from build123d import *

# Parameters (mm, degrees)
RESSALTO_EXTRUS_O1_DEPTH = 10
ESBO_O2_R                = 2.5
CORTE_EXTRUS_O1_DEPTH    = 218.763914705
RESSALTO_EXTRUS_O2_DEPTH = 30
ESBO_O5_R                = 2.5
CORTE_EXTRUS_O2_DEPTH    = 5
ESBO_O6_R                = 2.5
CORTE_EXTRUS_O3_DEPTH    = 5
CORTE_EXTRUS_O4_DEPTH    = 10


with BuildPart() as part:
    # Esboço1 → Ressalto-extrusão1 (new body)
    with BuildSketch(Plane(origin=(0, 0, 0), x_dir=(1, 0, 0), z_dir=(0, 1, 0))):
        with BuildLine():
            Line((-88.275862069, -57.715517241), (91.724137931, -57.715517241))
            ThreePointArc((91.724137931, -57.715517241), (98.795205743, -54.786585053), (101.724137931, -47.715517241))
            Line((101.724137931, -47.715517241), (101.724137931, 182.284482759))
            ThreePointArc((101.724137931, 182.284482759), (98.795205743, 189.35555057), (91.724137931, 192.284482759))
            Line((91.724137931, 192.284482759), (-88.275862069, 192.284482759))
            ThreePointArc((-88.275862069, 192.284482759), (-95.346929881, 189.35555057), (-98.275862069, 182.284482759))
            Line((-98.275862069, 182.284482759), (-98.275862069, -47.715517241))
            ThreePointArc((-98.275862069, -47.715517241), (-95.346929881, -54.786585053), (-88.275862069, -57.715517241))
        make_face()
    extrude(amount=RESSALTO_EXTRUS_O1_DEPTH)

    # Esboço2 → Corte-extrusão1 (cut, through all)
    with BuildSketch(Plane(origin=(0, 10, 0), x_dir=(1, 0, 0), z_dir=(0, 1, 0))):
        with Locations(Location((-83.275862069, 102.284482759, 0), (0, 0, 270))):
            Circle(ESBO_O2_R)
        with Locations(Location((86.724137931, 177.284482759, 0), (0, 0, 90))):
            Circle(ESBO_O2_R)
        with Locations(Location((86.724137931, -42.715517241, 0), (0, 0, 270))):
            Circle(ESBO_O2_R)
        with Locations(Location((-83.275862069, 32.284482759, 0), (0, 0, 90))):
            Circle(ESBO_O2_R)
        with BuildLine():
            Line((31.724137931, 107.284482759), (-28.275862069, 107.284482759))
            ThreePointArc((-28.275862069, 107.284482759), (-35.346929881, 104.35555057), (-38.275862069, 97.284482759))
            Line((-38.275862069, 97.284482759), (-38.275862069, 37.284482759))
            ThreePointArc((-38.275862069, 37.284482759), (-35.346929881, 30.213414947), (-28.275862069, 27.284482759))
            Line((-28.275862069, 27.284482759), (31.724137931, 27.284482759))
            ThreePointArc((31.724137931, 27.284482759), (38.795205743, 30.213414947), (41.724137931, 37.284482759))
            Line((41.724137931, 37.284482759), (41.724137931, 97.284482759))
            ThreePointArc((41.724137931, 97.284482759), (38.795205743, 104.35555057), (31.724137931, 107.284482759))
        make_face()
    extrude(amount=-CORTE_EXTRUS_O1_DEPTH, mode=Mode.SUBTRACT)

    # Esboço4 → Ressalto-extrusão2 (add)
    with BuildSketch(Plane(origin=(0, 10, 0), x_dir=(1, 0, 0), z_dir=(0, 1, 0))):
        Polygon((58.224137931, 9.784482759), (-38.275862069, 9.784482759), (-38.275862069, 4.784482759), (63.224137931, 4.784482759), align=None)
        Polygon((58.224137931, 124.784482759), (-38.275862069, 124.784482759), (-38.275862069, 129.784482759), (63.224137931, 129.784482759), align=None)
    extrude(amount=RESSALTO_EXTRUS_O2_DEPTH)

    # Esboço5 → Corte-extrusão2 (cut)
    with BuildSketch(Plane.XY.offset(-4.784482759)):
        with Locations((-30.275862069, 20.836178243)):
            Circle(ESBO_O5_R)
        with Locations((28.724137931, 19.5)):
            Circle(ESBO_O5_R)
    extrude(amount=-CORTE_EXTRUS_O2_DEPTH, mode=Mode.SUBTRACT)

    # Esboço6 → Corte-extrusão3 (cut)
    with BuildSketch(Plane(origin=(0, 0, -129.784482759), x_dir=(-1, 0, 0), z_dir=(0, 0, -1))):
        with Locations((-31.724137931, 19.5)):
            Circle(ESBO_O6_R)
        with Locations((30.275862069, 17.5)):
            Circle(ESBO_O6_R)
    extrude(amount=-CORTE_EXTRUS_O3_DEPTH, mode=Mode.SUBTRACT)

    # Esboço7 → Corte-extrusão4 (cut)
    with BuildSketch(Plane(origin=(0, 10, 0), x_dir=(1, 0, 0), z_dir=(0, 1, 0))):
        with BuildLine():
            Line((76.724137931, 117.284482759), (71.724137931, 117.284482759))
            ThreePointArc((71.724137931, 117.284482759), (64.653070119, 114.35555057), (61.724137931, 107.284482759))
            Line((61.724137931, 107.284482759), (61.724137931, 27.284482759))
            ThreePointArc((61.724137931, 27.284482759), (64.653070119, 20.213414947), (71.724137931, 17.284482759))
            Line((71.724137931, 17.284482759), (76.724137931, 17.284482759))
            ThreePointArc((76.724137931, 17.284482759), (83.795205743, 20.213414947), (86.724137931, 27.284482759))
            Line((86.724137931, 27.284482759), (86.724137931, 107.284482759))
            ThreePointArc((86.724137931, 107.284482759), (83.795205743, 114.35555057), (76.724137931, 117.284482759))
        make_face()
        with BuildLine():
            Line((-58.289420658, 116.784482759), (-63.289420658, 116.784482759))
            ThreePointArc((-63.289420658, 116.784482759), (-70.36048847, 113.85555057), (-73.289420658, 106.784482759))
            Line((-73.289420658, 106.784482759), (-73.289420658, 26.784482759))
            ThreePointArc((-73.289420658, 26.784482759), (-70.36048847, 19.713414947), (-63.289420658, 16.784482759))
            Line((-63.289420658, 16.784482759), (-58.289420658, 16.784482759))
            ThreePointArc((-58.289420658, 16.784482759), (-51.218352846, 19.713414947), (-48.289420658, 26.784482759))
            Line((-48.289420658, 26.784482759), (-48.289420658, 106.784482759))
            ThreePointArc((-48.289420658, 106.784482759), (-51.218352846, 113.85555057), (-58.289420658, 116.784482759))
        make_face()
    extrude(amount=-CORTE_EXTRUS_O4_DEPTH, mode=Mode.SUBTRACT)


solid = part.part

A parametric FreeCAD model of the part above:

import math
import FreeCAD as App
import Part
import Sketcher
from FreeCAD import Vector
Q = App.Units.Quantity


def add_polygon(sketch, points):
    """Adds a closed chain of lines whose ends are joined by coincident constraints."""
    first, n = sketch.GeometryCount, len(points)
    for a, b in zip(points, points[1:] + points[:1]):
        sketch.addGeometry(Part.LineSegment(App.Vector(*a, 0), App.Vector(*b, 0)), False)
    for i in range(n):
        sketch.addConstraint(Sketcher.Constraint("Coincident", first + i, 2, first + (i + 1) % n, 1))

doc = App.newDocument("Part")
body = doc.addObject("PartDesign::Body", "Body")

# Sketch on XZ plane
sketch1 = body.newObject("Sketcher::SketchObject", "Sketch")
sketch1.AttachmentSupport = (doc.getObject("XZ_Plane"), [""])
sketch1.MapMode = "FlatFace"
sketch1.addGeometry([
    Part.LineSegment(Vector(-88, 58, 0), Vector(92, 58, 0)),  # 0
    Part.ArcOfCircle(Part.Circle(Vector(92, 48, 0), Vector(0, 0, 1), 10), math.radians(0), math.radians(90)),  # 1
    Part.LineSegment(Vector(102, 48, 0), Vector(102, -182, 0)),  # 2
    Part.ArcOfCircle(Part.Circle(Vector(92, -182, 0), Vector(0, 0, 1), 10), math.radians(-90), math.radians(0)),  # 3
    Part.LineSegment(Vector(92, -192, 0), Vector(-88, -192, 0)),  # 4
    Part.ArcOfCircle(Part.Circle(Vector(-88, -182, 0), Vector(0, 0, 1), 10), math.radians(-180), math.radians(-90)),  # 5
    Part.LineSegment(Vector(-98, -182, 0), Vector(-98, 48, 0)),  # 6
    Part.ArcOfCircle(Part.Circle(Vector(-88, 48, 0), Vector(0, 0, 1), 10), math.radians(90), math.radians(180)),  # 7
], False)
sketch1.addConstraint([
    Sketcher.Constraint("Tangent", 0, 2, 1, 2),
    Sketcher.Constraint("Tangent", 1, 1, 2, 1),
    Sketcher.Constraint("Tangent", 2, 2, 3, 2),
    Sketcher.Constraint("Tangent", 3, 1, 4, 1),
    Sketcher.Constraint("Tangent", 4, 2, 5, 2),
    Sketcher.Constraint("Tangent", 5, 1, 6, 1),
    Sketcher.Constraint("Tangent", 6, 2, 7, 2),
    Sketcher.Constraint("Tangent", 7, 1, 0, 1),
    Sketcher.Constraint("Horizontal", 0),
    Sketcher.Constraint("Vertical", 2),
    Sketcher.Constraint("Horizontal", 4),
    Sketcher.Constraint("Vertical", 6),
    Sketcher.Constraint("Equal", 1, 3),
    Sketcher.Constraint("Equal", 3, 5),
    Sketcher.Constraint("Equal", 5, 7),
    Sketcher.Constraint("Radius", 1, Q("10 mm")),
    Sketcher.Constraint("DistanceX", 0, 1, 0, 2, Q("180 mm")),
    Sketcher.Constraint("DistanceY", 2, 2, 2, 1, Q("230 mm")),
    Sketcher.Constraint("DistanceX", -1, 1, 1, 3, Q("91.724138 mm")),
    Sketcher.Constraint("DistanceY", -1, 1, 1, 3, Q("47.715517 mm")),
])
pad1 = body.newObject("PartDesign::Pad", "Pad")
pad1.Profile = sketch1
pad1.Length = 10
pad1.Reversed = True

# Sketch on XZ plane
sketch2 = body.newObject("Sketcher::SketchObject", "Sketch001")
sketch2.AttachmentSupport = (doc.getObject("XZ_Plane"), [""])
sketch2.MapMode = "FlatFace"
sketch2.AttachmentOffset = App.Placement(Vector(0, 0, -10), App.Rotation())
sketch2.addGeometry([
    Part.Circle(Vector(-83.3, -102.3, 0), Vector(0, 0, 1), 2.5),  # 0
    Part.Circle(Vector(86.7, -177.3, 0), Vector(0, 0, 1), 2.5),  # 1
    Part.Circle(Vector(86.7, 42.7, 0), Vector(0, 0, 1), 2.5),  # 2
    Part.Circle(Vector(-83.3, -32.3, 0), Vector(0, 0, 1), 2.5),  # 3
    Part.LineSegment(Vector(31.7, -107.3, 0), Vector(-28.3, -107.3, 0)),  # 4
    Part.ArcOfCircle(Part.Circle(Vector(-28.3, -97.3, 0), Vector(0, 0, 1), 10), math.radians(-180), math.radians(-90)),  # 5
    Part.LineSegment(Vector(-38.3, -97.3, 0), Vector(-38.3, -37.3, 0)),  # 6
    Part.ArcOfCircle(Part.Circle(Vector(-28.3, -37.3, 0), Vector(0, 0, 1), 10), math.radians(90), math.radians(180)),  # 7
    Part.LineSegment(Vector(-28.3, -27.3, 0), Vector(31.7, -27.3, 0)),  # 8
    Part.ArcOfCircle(Part.Circle(Vector(31.7, -37.3, 0), Vector(0, 0, 1), 10), math.radians(0), math.radians(90)),  # 9
    Part.LineSegment(Vector(41.7, -37.3, 0), Vector(41.7, -97.3, 0)),  # 10
    Part.ArcOfCircle(Part.Circle(Vector(31.7, -97.3, 0), Vector(0, 0, 1), 10), math.radians(-90), math.radians(0)),  # 11
], False)
sketch2.addConstraint([
    Sketcher.Constraint("Tangent", 4, 2, 5, 2),
    Sketcher.Constraint("Tangent", 5, 1, 6, 1),
    Sketcher.Constraint("Tangent", 6, 2, 7, 2),
    Sketcher.Constraint("Tangent", 7, 1, 8, 1),
    Sketcher.Constraint("Tangent", 8, 2, 9, 2),
    Sketcher.Constraint("Tangent", 9, 1, 10, 1),
    Sketcher.Constraint("Tangent", 10, 2, 11, 2),
    Sketcher.Constraint("Tangent", 11, 1, 4, 1),
    Sketcher.Constraint("Horizontal", 4),
    Sketcher.Constraint("Vertical", 6),
    Sketcher.Constraint("Horizontal", 8),
    Sketcher.Constraint("Vertical", 10),
    Sketcher.Constraint("Equal", 0, 1),
    Sketcher.Constraint("Equal", 1, 2),
    Sketcher.Constraint("Equal", 2, 3),
    Sketcher.Constraint("Equal", 5, 7),
    Sketcher.Constraint("Equal", 7, 9),
    Sketcher.Constraint("Equal", 9, 11),
    Sketcher.Constraint("Vertical", 1, 3, 2, 3),
    Sketcher.Constraint("Vertical", 0, 3, 3, 3),
    Sketcher.Constraint("Equal", 8, 6),
    Sketcher.Constraint("Diameter", 0, Q("5 mm")),
    Sketcher.Constraint("Radius", 5, Q("10 mm")),
    Sketcher.Constraint("DistanceX", 4, 2, 4, 1, Q("60 mm")),
    Sketcher.Constraint("DistanceX", 0, 3, 1, 3, Q("170 mm")),
    Sketcher.Constraint("DistanceY", 1, 3, 0, 3, Q("75 mm")),
    Sketcher.Constraint("DistanceY", 1, 3, 2, 3, Q("220 mm")),
    Sketcher.Constraint("DistanceY", 0, 3, 3, 3, Q("70 mm")),
    Sketcher.Constraint("DistanceX", 0, 3, 5, 3, Q("55 mm")),
    Sketcher.Constraint("DistanceY", 0, 3, 5, 3, Q("5 mm")),
    Sketcher.Constraint("DistanceX", 0, 3, -1, 1, Q("83.275862 mm")),
    Sketcher.Constraint("DistanceY", 0, 3, -1, 1, Q("102.284483 mm")),
])
pocket1 = body.newObject("PartDesign::Pocket", "Pocket")
pocket1.Profile = sketch2
pocket1.Type = "ThroughAll"
pocket1.Reversed = True

# Sketch on XZ plane
sketch3 = body.newObject("Sketcher::SketchObject", "Sketch002")
sketch3.AttachmentSupport = (doc.getObject("XZ_Plane"), [""])
sketch3.MapMode = "FlatFace"
sketch3.AttachmentOffset = App.Placement(Vector(0, 0, -10), App.Rotation())
add_polygon(sketch3, [(58.2, -9.8), (-38.3, -9.8), (-38.3, -4.8), (63.2, -4.8)])  # lines 0-3
add_polygon(sketch3, [(-38.3, -124.8), (58.2, -124.8), (63.2, -129.8), (-38.3, -129.8)])  # lines 4-7
sketch3.addConstraint([
    Sketcher.Constraint("Horizontal", 0),
    Sketcher.Constraint("Vertical", 1),
    Sketcher.Constraint("Horizontal", 2),
    Sketcher.Constraint("Horizontal", 4),
    Sketcher.Constraint("Horizontal", 6),
    Sketcher.Constraint("Vertical", 7),
    Sketcher.Constraint("Perpendicular", 3, 5),
    Sketcher.Constraint("Vertical", 3, 2, 4, 2),
    Sketcher.Constraint("Vertical", 2, 2, 5, 2),
    Sketcher.Constraint("Vertical", 1, 2, 6, 2),
    Sketcher.Constraint("Equal", 1, 7),
    Sketcher.Constraint("DistanceY", 1, 1, 1, 2, Q("5 mm")),
    Sketcher.Constraint("DistanceX", 0, 2, 0, 1, Q("96.5 mm")),
    Sketcher.Constraint("DistanceY", 4, 2, 3, 2, Q("115 mm")),
    Sketcher.Constraint("DistanceX", 0, 2, -1, 1, Q("38.275862 mm")),
    Sketcher.Constraint("DistanceY", 0, 2, -1, 1, Q("9.784483 mm")),
])
pad2 = body.newObject("PartDesign::Pad", "Pad001")
pad2.Profile = sketch3
pad2.Length = 30
pad2.Reversed = True

# Sketch on XY plane
sketch4 = body.newObject("Sketcher::SketchObject", "Sketch003")
sketch4.AttachmentSupport = (doc.getObject("XY_Plane"), [""])
sketch4.MapMode = "FlatFace"
sketch4.AttachmentOffset = App.Placement(Vector(0, 0, -4.784483), App.Rotation())
sketch4.addGeometry([
    Part.Circle(Vector(-30.3, 20.8, 0), Vector(0, 0, 1), 2.5),
    Part.Circle(Vector(28.7, 19.5, 0), Vector(0, 0, 1), 2.5),
], False)
sketch4.addConstraint([
    Sketcher.Constraint("Equal", 0, 1),
    Sketcher.Constraint("Diameter", 0, Q("5 mm")),
    Sketcher.Constraint("DistanceX", 0, 3, 1, 3, Q("59 mm")),
    Sketcher.Constraint("DistanceY", -1, 1, 1, 3, Q("19.5 mm")),
    Sketcher.Constraint("DistanceY", -1, 1, 0, 3, Q("20.836178 mm")),
    Sketcher.Constraint("DistanceX", 0, 3, -1, 1, Q("30.275862 mm")),
])
pocket2 = body.newObject("PartDesign::Pocket", "Pocket001")
pocket2.Profile = sketch4
pocket2.Length = 5

# Sketch on XY plane
sketch5 = body.newObject("Sketcher::SketchObject", "Sketch004")
sketch5.AttachmentSupport = (doc.getObject("XY_Plane"), [""])
sketch5.MapMode = "FlatFace"
sketch5.AttachmentOffset = App.Placement(Vector(0, 0, -129.784483), App.Rotation())
sketch5.addGeometry([
    Part.Circle(Vector(31.7, 19.5, 0), Vector(0, 0, 1), 2.5),
    Part.Circle(Vector(-30.3, 17.5, 0), Vector(0, 0, 1), 2.5),
], False)
sketch5.addConstraint([
    Sketcher.Constraint("Equal", 0, 1),
    Sketcher.Constraint("Diameter", 0, Q("5 mm")),
    Sketcher.Constraint("DistanceX", 1, 3, 0, 3, Q("62 mm")),
    Sketcher.Constraint("DistanceY", 1, 3, 0, 3, Q("2 mm")),
    Sketcher.Constraint("DistanceY", -1, 1, 0, 3, Q("19.5 mm")),
    Sketcher.Constraint("DistanceX", -1, 1, 0, 3, Q("31.724138 mm")),
])
pocket3 = body.newObject("PartDesign::Pocket", "Pocket002")
pocket3.Profile = sketch5
pocket3.Length = 5
pocket3.Reversed = True

# Sketch on XZ plane
sketch6 = body.newObject("Sketcher::SketchObject", "Sketch005")
sketch6.AttachmentSupport = (doc.getObject("XZ_Plane"), [""])
sketch6.MapMode = "FlatFace"
sketch6.AttachmentOffset = App.Placement(Vector(0, 0, -10), App.Rotation())
sketch6.addGeometry([
    Part.LineSegment(Vector(77, -117, 0), Vector(72, -117, 0)),  # 0
    Part.ArcOfCircle(Part.Circle(Vector(72, -107, 0), Vector(0, 0, 1), 10), math.radians(-180), math.radians(-90)),  # 1
    Part.LineSegment(Vector(62, -107, 0), Vector(62, -27, 0)),  # 2
    Part.ArcOfCircle(Part.Circle(Vector(72, -27, 0), Vector(0, 0, 1), 10), math.radians(90), math.radians(180)),  # 3
    Part.LineSegment(Vector(72, -17, 0), Vector(77, -17, 0)),  # 4
    Part.ArcOfCircle(Part.Circle(Vector(77, -27, 0), Vector(0, 0, 1), 10), math.radians(0), math.radians(90)),  # 5
    Part.LineSegment(Vector(87, -27, 0), Vector(87, -107, 0)),  # 6
    Part.ArcOfCircle(Part.Circle(Vector(77, -107, 0), Vector(0, 0, 1), 10), math.radians(-90), math.radians(0)),  # 7
    Part.LineSegment(Vector(-58, -117, 0), Vector(-63, -117, 0)),  # 8
    Part.ArcOfCircle(Part.Circle(Vector(-63, -107, 0), Vector(0, 0, 1), 10), math.radians(-180), math.radians(-90)),  # 9
    Part.LineSegment(Vector(-73, -107, 0), Vector(-73, -27, 0)),  # 10
    Part.ArcOfCircle(Part.Circle(Vector(-63, -27, 0), Vector(0, 0, 1), 10), math.radians(90), math.radians(180)),  # 11
    Part.LineSegment(Vector(-63, -17, 0), Vector(-58, -17, 0)),  # 12
    Part.ArcOfCircle(Part.Circle(Vector(-58, -27, 0), Vector(0, 0, 1), 10), math.radians(0), math.radians(90)),  # 13
    Part.LineSegment(Vector(-48, -27, 0), Vector(-48, -107, 0)),  # 14
    Part.ArcOfCircle(Part.Circle(Vector(-58, -107, 0), Vector(0, 0, 1), 10), math.radians(-90), math.radians(0)),  # 15
], False)
sketch6.addConstraint([
    Sketcher.Constraint("Tangent", 0, 2, 1, 2),
    Sketcher.Constraint("Tangent", 1, 1, 2, 1),
    Sketcher.Constraint("Tangent", 2, 2, 3, 2),
    Sketcher.Constraint("Tangent", 3, 1, 4, 1),
    Sketcher.Constraint("Tangent", 4, 2, 5, 2),
    Sketcher.Constraint("Tangent", 5, 1, 6, 1),
    Sketcher.Constraint("Tangent", 6, 2, 7, 2),
    Sketcher.Constraint("Tangent", 7, 1, 0, 1),
    Sketcher.Constraint("Tangent", 8, 2, 9, 2),
    Sketcher.Constraint("Tangent", 9, 1, 10, 1),
    Sketcher.Constraint("Tangent", 10, 2, 11, 2),
    Sketcher.Constraint("Tangent", 11, 1, 12, 1),
    Sketcher.Constraint("Tangent", 12, 2, 13, 2),
    Sketcher.Constraint("Tangent", 13, 1, 14, 1),
    Sketcher.Constraint("Tangent", 14, 2, 15, 2),
    Sketcher.Constraint("Tangent", 15, 1, 8, 1),
    Sketcher.Constraint("Horizontal", 0),
    Sketcher.Constraint("Vertical", 2),
    Sketcher.Constraint("Horizontal", 4),
    Sketcher.Constraint("Vertical", 6),
    Sketcher.Constraint("Horizontal", 8),
    Sketcher.Constraint("Vertical", 10),
    Sketcher.Constraint("Horizontal", 12),
    Sketcher.Constraint("Vertical", 14),
    Sketcher.Constraint("Equal", 1, 3),
    Sketcher.Constraint("Equal", 3, 5),
    Sketcher.Constraint("Equal", 5, 7),
    Sketcher.Constraint("Equal", 7, 9),
    Sketcher.Constraint("Equal", 9, 11),
    Sketcher.Constraint("Equal", 11, 13),
    Sketcher.Constraint("Equal", 13, 15),
    Sketcher.Constraint("Equal", 4, 8),
    Sketcher.Constraint("Equal", 6, 10),
    Sketcher.Constraint("Radius", 1, Q("10 mm")),
    Sketcher.Constraint("DistanceX", 0, 2, 0, 1, Q("5 mm")),
    Sketcher.Constraint("DistanceY", 2, 1, 2, 2, Q("80 mm")),
    Sketcher.Constraint("DistanceY", 1, 3, 9, 3, Q("0.5 mm")),
    Sketcher.Constraint("DistanceX", 9, 3, -1, 1, Q("63.289421 mm")),
    Sketcher.Constraint("DistanceX", 9, 3, 1, 3, Q("135.013559 mm")),
    Sketcher.Constraint("DistanceY", 1, 3, -1, 1, Q("107.284483 mm")),
])
pocket4 = body.newObject("PartDesign::Pocket", "Pocket003")
pocket4.Profile = sketch6
pocket4.Length = 10
pocket4.Reversed = True

doc.recompute()
